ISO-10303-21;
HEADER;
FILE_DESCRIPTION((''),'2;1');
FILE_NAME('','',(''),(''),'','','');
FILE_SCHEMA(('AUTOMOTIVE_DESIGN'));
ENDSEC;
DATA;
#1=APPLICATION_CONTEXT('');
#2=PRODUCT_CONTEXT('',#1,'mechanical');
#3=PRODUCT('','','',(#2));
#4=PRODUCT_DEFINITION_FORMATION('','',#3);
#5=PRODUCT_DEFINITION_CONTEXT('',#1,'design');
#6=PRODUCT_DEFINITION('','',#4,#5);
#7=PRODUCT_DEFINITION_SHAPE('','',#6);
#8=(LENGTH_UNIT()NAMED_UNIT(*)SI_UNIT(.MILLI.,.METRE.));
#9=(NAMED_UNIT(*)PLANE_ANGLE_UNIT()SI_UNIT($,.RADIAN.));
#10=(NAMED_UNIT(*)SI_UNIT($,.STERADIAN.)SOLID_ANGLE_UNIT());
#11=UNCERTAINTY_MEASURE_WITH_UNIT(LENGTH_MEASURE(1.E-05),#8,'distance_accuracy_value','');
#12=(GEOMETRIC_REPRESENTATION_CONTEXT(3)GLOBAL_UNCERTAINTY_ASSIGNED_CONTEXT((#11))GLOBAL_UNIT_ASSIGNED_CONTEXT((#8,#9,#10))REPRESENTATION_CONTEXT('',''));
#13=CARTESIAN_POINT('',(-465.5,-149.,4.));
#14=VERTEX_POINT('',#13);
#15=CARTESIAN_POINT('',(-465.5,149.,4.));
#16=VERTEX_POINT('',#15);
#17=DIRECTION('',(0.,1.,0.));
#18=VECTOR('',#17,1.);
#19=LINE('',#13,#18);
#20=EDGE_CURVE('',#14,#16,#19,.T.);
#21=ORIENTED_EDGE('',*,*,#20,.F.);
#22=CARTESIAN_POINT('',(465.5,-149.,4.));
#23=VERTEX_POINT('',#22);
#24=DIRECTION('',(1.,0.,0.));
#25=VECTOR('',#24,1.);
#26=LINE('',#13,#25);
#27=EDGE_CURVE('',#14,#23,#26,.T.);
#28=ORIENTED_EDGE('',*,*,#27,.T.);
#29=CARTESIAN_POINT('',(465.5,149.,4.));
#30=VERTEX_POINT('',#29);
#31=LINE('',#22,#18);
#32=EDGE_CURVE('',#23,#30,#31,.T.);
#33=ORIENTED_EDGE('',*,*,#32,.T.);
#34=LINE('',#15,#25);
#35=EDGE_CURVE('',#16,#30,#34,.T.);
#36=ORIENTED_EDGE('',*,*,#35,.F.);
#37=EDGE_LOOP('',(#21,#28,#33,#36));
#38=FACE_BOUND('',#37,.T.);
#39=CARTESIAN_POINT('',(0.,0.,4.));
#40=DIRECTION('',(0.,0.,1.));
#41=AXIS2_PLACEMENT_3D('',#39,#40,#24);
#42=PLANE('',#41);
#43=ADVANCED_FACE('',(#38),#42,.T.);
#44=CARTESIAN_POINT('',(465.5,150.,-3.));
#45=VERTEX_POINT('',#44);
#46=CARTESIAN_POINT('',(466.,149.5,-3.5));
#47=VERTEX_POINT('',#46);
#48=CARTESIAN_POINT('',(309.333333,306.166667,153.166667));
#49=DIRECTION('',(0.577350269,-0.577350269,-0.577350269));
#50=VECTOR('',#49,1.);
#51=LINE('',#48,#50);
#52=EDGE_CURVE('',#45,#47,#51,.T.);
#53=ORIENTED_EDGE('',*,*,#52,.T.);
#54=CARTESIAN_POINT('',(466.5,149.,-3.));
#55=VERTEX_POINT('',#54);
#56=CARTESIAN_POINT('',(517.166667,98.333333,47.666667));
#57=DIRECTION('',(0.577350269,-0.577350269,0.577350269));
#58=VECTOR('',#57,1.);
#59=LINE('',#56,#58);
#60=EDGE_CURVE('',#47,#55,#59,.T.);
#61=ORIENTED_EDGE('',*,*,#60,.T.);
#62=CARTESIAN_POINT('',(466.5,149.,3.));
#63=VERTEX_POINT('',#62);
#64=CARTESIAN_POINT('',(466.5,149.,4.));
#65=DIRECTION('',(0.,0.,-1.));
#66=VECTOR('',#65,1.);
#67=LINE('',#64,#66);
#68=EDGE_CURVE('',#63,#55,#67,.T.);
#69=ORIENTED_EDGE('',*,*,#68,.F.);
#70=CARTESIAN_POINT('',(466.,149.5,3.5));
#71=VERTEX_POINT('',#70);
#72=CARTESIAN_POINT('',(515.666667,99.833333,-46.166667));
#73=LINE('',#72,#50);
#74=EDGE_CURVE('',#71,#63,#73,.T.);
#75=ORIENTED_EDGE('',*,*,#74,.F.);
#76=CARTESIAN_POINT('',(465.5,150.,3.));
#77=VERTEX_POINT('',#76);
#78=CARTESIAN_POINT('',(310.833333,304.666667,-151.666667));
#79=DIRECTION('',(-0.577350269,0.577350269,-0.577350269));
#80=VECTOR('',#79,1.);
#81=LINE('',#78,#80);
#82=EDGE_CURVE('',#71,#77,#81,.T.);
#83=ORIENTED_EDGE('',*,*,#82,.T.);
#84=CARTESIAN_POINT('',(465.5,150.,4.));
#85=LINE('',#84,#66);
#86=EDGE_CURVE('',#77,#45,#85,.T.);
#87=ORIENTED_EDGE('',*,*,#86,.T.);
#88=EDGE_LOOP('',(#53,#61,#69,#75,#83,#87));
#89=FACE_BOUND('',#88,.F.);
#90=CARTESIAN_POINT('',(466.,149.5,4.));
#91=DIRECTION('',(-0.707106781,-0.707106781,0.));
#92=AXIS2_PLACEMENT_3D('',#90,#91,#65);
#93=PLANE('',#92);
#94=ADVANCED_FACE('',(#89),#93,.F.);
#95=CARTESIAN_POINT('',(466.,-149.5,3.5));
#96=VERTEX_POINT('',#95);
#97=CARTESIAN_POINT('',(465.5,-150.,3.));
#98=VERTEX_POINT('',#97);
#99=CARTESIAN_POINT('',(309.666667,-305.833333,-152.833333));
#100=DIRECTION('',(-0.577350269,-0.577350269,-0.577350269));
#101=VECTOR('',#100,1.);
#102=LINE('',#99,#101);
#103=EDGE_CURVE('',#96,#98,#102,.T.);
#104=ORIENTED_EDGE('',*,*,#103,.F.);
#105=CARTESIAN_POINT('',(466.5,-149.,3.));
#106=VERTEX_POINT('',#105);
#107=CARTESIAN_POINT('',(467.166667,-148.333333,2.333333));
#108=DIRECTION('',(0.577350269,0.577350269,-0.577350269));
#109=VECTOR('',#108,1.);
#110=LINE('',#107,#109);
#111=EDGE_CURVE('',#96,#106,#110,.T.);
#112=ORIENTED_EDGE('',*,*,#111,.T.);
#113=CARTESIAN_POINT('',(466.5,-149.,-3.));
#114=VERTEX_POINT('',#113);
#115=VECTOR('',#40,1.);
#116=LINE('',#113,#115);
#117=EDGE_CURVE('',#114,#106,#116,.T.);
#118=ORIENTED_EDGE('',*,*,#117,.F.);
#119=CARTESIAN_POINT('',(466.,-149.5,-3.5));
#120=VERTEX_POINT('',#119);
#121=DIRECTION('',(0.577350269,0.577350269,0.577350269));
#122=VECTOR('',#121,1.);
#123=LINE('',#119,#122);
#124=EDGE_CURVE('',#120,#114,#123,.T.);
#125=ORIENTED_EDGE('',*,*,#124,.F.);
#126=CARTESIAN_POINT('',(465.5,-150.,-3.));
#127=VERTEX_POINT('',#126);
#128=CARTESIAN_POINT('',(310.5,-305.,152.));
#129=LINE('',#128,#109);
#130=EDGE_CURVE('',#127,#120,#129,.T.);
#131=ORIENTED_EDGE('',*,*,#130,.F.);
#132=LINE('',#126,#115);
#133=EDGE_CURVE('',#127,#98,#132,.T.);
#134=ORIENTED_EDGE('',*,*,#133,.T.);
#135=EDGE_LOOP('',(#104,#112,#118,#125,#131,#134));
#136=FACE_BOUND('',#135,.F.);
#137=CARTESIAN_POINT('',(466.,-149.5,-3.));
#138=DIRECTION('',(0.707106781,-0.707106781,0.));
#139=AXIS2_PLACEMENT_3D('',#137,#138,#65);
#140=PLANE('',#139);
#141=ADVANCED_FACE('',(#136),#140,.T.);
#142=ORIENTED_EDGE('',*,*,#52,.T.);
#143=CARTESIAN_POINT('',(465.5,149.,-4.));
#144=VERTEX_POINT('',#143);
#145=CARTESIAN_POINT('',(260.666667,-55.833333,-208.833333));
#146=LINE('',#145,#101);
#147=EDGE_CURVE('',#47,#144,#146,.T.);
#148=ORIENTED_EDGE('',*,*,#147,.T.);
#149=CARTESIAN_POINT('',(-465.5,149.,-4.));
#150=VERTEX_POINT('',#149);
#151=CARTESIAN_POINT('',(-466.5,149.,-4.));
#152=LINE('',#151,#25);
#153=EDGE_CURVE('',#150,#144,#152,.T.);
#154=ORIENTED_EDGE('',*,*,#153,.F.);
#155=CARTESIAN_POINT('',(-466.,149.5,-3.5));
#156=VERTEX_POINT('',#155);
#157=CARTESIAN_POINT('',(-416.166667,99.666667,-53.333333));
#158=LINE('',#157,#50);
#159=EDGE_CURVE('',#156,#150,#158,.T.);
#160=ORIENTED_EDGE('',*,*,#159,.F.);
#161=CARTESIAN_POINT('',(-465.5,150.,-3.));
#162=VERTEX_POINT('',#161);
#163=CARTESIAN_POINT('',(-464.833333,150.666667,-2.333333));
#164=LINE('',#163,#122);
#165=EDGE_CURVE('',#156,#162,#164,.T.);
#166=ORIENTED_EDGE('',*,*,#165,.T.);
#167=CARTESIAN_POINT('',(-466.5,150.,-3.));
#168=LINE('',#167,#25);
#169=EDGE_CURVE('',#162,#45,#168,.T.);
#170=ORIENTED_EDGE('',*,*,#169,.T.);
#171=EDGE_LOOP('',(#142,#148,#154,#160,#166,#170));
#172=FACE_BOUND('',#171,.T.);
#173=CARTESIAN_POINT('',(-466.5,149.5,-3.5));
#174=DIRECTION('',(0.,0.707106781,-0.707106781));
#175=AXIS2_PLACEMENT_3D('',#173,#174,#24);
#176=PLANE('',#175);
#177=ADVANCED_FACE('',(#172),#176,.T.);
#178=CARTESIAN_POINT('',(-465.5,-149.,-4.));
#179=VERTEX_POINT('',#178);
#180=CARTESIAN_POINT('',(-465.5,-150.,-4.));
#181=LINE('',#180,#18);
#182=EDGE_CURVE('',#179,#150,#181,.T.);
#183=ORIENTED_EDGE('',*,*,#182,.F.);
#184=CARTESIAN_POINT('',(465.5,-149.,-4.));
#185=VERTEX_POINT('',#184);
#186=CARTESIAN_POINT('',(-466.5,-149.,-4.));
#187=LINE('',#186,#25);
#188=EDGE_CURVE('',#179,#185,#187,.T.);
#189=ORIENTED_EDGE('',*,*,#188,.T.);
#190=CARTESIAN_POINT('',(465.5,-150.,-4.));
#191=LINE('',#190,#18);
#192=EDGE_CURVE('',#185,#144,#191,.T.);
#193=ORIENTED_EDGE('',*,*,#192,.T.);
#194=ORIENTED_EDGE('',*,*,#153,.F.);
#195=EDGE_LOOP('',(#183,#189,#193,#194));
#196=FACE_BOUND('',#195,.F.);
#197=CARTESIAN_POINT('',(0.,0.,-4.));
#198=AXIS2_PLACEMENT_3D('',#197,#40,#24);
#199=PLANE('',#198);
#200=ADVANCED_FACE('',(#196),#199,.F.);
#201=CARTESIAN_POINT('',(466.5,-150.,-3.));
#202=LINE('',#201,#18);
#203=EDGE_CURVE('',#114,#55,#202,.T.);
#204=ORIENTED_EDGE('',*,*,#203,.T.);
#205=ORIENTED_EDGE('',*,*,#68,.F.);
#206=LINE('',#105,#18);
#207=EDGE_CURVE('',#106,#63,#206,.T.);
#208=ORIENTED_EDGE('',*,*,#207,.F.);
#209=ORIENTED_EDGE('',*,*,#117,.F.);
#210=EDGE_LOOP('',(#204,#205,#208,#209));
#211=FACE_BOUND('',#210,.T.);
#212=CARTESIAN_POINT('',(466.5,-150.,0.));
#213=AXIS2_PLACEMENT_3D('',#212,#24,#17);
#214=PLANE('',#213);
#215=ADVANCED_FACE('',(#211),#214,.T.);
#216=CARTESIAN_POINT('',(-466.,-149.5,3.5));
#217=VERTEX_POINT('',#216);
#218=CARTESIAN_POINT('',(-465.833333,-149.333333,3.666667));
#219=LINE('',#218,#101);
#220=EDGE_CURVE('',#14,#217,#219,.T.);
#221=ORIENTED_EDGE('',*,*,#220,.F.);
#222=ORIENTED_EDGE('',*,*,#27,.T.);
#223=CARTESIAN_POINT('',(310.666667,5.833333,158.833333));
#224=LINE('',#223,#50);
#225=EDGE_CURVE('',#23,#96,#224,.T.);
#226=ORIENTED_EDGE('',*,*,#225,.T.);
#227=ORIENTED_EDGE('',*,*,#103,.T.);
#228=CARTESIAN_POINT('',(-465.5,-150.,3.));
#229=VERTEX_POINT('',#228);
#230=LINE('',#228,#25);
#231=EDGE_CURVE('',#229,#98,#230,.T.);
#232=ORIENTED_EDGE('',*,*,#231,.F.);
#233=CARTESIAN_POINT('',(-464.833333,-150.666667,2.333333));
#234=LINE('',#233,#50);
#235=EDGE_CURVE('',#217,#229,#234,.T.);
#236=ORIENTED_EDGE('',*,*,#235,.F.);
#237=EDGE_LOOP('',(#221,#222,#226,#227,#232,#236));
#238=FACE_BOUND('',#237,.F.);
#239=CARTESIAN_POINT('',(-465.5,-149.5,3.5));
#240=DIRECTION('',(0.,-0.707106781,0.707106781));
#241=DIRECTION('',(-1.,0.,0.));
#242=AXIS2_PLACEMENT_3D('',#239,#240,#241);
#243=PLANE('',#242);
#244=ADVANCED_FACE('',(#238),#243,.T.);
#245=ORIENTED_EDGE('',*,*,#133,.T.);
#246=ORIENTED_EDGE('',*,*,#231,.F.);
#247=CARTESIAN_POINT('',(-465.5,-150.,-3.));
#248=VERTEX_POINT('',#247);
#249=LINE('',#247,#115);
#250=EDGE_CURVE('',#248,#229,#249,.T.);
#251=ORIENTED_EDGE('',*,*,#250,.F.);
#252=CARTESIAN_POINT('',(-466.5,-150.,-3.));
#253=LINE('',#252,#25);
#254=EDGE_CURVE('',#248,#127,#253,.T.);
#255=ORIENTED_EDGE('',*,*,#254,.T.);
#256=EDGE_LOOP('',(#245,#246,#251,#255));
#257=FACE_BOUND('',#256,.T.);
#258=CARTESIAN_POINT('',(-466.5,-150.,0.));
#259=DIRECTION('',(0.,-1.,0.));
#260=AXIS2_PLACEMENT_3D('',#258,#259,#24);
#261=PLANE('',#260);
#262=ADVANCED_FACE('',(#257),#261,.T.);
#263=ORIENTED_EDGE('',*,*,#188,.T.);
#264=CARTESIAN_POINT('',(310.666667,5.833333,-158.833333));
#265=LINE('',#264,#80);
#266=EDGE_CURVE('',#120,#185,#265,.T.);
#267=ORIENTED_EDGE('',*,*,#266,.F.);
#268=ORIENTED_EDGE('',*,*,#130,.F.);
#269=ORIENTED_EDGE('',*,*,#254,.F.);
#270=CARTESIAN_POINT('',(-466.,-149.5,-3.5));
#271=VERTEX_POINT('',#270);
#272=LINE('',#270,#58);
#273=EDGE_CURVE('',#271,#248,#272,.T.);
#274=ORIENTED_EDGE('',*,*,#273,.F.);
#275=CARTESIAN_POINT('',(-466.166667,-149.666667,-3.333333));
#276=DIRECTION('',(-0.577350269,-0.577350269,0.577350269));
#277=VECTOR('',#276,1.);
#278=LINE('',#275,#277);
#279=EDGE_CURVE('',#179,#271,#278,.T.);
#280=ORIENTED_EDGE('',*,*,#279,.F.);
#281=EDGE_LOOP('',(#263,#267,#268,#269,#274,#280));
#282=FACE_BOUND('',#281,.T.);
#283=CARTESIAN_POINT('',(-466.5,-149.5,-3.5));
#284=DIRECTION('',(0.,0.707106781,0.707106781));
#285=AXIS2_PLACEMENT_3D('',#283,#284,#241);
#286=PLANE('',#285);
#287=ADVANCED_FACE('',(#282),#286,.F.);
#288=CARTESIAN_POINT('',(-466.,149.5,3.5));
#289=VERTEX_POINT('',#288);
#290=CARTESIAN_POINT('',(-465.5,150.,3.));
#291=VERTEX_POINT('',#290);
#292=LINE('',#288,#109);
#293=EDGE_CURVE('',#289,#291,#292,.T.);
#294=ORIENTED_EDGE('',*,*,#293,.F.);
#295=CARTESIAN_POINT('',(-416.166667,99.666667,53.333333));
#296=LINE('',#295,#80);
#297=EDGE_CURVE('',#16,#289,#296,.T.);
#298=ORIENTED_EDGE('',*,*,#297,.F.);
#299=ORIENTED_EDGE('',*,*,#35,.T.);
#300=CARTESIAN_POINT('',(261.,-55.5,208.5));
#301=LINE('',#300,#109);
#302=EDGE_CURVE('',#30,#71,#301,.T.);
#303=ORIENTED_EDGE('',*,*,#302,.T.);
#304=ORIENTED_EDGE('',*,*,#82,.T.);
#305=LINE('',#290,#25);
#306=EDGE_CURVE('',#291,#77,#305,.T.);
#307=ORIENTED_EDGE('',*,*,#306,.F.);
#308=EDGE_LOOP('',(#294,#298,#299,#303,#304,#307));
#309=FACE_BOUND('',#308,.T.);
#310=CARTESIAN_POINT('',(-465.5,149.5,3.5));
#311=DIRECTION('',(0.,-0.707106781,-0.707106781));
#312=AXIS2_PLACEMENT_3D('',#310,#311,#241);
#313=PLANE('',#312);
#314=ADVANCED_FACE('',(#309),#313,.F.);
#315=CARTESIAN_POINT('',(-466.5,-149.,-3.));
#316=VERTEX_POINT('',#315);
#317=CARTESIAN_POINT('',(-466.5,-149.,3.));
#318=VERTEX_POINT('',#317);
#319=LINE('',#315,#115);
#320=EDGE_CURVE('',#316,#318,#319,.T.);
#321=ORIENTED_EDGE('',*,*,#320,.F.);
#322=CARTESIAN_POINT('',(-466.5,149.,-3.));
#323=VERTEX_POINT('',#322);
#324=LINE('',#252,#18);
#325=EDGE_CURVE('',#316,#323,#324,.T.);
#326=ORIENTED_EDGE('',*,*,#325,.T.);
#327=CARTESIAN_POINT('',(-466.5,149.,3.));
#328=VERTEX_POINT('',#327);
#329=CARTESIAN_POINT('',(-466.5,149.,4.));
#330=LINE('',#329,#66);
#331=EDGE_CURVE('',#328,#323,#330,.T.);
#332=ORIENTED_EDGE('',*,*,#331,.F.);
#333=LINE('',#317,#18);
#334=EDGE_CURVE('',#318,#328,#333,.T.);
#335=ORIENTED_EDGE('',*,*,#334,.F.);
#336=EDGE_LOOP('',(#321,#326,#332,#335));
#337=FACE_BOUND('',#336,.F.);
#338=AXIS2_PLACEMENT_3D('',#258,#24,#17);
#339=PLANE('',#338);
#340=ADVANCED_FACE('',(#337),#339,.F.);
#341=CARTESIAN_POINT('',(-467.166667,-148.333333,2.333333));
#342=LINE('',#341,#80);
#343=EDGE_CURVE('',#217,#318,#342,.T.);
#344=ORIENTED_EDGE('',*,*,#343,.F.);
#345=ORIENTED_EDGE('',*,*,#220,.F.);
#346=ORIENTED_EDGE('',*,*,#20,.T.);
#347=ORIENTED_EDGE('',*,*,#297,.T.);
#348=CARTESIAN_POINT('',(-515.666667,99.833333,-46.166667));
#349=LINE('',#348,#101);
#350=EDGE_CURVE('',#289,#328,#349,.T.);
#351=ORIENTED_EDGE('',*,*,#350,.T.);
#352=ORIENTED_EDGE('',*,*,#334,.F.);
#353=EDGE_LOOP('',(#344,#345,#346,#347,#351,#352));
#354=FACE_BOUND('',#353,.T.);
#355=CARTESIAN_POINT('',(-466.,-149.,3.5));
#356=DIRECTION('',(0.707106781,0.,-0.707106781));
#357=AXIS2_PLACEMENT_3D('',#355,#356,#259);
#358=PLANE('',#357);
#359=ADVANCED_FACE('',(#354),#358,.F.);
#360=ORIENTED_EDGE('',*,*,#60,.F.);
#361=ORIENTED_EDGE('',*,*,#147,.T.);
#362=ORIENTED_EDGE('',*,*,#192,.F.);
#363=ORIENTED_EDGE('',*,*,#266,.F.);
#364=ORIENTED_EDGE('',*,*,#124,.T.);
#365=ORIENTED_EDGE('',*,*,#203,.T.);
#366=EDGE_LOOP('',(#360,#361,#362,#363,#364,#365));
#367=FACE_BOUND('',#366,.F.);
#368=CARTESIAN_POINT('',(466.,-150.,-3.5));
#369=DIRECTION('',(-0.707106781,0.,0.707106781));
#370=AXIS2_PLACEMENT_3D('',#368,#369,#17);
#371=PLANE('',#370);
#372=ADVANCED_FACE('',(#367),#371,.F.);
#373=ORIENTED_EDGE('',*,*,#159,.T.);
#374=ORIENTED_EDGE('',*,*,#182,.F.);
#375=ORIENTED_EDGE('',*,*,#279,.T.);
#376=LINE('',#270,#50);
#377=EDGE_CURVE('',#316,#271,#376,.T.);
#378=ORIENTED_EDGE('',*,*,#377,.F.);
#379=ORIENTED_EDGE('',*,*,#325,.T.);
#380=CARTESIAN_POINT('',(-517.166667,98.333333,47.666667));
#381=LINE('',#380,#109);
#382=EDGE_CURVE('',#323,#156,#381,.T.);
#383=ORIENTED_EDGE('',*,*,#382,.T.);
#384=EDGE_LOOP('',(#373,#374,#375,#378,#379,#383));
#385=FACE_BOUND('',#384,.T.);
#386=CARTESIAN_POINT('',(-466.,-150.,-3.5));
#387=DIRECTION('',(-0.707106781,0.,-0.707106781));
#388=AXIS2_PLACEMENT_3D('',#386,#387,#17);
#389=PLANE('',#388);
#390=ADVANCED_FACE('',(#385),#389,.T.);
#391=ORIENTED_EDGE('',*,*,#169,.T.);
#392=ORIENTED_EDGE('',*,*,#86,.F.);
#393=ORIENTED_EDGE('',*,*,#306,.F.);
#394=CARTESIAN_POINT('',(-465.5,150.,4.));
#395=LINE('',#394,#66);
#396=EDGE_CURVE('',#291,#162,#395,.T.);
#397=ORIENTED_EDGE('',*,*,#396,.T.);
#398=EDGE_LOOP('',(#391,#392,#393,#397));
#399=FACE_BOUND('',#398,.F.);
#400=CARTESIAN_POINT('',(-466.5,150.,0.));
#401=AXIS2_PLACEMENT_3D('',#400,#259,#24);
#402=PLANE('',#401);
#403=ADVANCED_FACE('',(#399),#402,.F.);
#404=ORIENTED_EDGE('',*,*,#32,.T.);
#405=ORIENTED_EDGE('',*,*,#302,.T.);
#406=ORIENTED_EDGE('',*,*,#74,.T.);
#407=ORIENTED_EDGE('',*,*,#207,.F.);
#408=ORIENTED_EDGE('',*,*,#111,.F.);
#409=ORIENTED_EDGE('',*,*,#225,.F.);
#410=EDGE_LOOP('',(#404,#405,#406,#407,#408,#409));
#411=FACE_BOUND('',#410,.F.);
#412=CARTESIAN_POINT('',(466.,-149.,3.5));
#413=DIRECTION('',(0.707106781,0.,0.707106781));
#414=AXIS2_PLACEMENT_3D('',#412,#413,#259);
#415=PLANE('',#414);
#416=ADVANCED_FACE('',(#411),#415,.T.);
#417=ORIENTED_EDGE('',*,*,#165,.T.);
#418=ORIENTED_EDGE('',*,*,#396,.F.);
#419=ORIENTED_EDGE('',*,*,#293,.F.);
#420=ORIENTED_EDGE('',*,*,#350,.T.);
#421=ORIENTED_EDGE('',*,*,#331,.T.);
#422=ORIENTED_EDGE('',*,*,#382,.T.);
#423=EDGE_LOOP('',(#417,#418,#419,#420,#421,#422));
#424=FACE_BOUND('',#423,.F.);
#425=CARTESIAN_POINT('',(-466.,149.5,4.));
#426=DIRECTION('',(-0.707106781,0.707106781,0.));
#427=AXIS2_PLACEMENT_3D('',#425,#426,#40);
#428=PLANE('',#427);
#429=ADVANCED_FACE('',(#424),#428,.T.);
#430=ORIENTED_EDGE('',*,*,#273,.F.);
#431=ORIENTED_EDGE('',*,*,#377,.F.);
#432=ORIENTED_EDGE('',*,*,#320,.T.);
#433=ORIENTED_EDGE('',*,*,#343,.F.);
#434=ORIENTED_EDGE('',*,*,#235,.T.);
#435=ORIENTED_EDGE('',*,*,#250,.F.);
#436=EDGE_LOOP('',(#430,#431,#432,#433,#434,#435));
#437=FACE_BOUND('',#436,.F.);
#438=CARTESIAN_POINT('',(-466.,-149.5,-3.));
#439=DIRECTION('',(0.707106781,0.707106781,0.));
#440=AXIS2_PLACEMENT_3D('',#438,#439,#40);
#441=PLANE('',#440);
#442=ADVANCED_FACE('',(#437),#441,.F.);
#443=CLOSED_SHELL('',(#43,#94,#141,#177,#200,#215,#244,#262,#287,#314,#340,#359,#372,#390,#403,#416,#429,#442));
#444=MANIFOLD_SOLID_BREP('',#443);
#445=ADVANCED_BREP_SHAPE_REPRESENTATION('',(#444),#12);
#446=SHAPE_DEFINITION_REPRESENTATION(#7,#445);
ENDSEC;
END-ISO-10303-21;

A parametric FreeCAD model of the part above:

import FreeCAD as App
import Part
import Sketcher


def edges_at(feature, points):
    """Names of the edges that pass closest to the given points."""
    edges = feature.Shape.Edges
    near = lambda p: min(range(len(edges)), key=lambda i: edges[i].distToShape(Part.Vertex(*p))[0])
    return sorted({f"Edge{near(p) + 1}" for p in points})


def add_polygon(sketch, points):
    """Adds a closed chain of lines whose ends are joined by coincident constraints."""
    first, n = sketch.GeometryCount, len(points)
    for a, b in zip(points, points[1:] + points[:1]):
        sketch.addGeometry(Part.LineSegment(App.Vector(*a, 0), App.Vector(*b, 0)), False)
    for i in range(n):
        sketch.addConstraint(Sketcher.Constraint("Coincident", first + i, 2, first + (i + 1) % n, 1))

doc = App.newDocument("Part")
params = doc.addObject("Spreadsheet::Sheet", "Params")
for row, (alias, value) in enumerate([
    ("sketch1_width", "933 mm"),
    ("sketch1_height", "300 mm"),
    ("pad1_length", "8 mm"),
    ("chamfer_size", "1 mm"),
    ("chamfer2_size", "1 mm"),
    ("chamfer3_size", "1 mm"),
    ("chamfer4_size", "1 mm"),
    ("chamfer5_size", "1 mm"),
    ("chamfer6_size", "1 mm"),
    ("chamfer7_size", "1 mm"),
    ("chamfer8_size", "1 mm"),
    ("chamfer9_size", "1 mm"),
], start=1):
    params.set(f"A{row}", alias)
    params.set(f"B{row}", "=" + value)
    params.setAlias(f"B{row}", alias)

body = doc.addObject("PartDesign::Body", "Body")

# Sketch on XY plane
sketch1 = body.newObject("Sketcher::SketchObject", "Sketch")
sketch1.AttachmentSupport = (doc.getObject("XY_Plane"), [""])
sketch1.MapMode = "FlatFace"
add_polygon(sketch1, [(-466.5, 150), (-466.5, -150), (466.5, -150), (466.5, 150)])  # lines 0-3
sketch1.addConstraint(Sketcher.Constraint("Vertical", 0))
sketch1.addConstraint(Sketcher.Constraint("Horizontal", 1))
sketch1.addConstraint(Sketcher.Constraint("Vertical", 2))
sketch1.addConstraint(Sketcher.Constraint("Horizontal", 3))
sketch1.addConstraint(Sketcher.Constraint("Symmetric", 0, 2, 2, 2, -1, 1))
sketch1.addConstraint(Sketcher.Constraint("DistanceX", 1, 1, 1, 2, 933.0))
sketch1.addConstraint(Sketcher.Constraint("DistanceY", 0, 2, 0, 1, 300.0))
sketch1.setExpression("Constraints[9]", "Params.sketch1_width")
sketch1.setExpression("Constraints[10]", "Params.sketch1_height")
pad1 = body.newObject("PartDesign::Pad", "Pad")
pad1.Profile = sketch1
pad1.setExpression("Length", "Params.pad1_length")
pad1.Midplane = True
doc.recompute()

chamfer = body.newObject("PartDesign::Chamfer", "Chamfer")
chamfer.Base = (pad1, edges_at(pad1, [
    (466.5, 0, -4),
    (0, -150, -4),
    (-466.5, 0, -4),
    (0, 150, -4),
]))
chamfer.setExpression("Size", "Params.chamfer_size")
doc.recompute()

chamfer2 = body.newObject("PartDesign::Chamfer", "Chamfer001")
chamfer2.Base = (chamfer, edges_at(chamfer, [(466.5, -150, 0.5)]))
chamfer2.setExpression("Size", "Params.chamfer2_size")
doc.recompute()

chamfer3 = body.newObject("PartDesign::Chamfer", "Chamfer002")
chamfer3.Base = (chamfer2, edges_at(chamfer2, [(-466.5, 150, 0.5)]))
chamfer3.setExpression("Size", "Params.chamfer3_size")
doc.recompute()

chamfer4 = body.newObject("PartDesign::Chamfer", "Chamfer003")
chamfer4.Base = (chamfer3, edges_at(chamfer3, [(-466.5, -150, 0.5)]))
chamfer4.setExpression("Size", "Params.chamfer4_size")
doc.recompute()

chamfer5 = body.newObject("PartDesign::Chamfer", "Chamfer004")
chamfer5.Base = (chamfer4, edges_at(chamfer4, [(466.5, 150, 0.5)]))
chamfer5.setExpression("Size", "Params.chamfer5_size")
doc.recompute()

chamfer6 = body.newObject("PartDesign::Chamfer", "Chamfer005")
chamfer6.Base = (chamfer5, edges_at(chamfer5, [(0, -150, 4)]))
chamfer6.setExpression("Size", "Params.chamfer6_size")
doc.recompute()

chamfer7 = body.newObject("PartDesign::Chamfer", "Chamfer006")
chamfer7.Base = (chamfer6, edges_at(chamfer6, [(466.5, 0, 4)]))
chamfer7.setExpression("Size", "Params.chamfer7_size")
doc.recompute()

chamfer8 = body.newObject("PartDesign::Chamfer", "Chamfer007")
chamfer8.Base = (chamfer7, edges_at(chamfer7, [(0, 150, 4)]))
chamfer8.setExpression("Size", "Params.chamfer8_size")
doc.recompute()

chamfer9 = body.newObject("PartDesign::Chamfer", "Chamfer008")
chamfer9.Base = (chamfer8, edges_at(chamfer8, [(-466.5, 0, 4)]))
chamfer9.setExpression("Size", "Params.chamfer9_size")

doc.recompute()
